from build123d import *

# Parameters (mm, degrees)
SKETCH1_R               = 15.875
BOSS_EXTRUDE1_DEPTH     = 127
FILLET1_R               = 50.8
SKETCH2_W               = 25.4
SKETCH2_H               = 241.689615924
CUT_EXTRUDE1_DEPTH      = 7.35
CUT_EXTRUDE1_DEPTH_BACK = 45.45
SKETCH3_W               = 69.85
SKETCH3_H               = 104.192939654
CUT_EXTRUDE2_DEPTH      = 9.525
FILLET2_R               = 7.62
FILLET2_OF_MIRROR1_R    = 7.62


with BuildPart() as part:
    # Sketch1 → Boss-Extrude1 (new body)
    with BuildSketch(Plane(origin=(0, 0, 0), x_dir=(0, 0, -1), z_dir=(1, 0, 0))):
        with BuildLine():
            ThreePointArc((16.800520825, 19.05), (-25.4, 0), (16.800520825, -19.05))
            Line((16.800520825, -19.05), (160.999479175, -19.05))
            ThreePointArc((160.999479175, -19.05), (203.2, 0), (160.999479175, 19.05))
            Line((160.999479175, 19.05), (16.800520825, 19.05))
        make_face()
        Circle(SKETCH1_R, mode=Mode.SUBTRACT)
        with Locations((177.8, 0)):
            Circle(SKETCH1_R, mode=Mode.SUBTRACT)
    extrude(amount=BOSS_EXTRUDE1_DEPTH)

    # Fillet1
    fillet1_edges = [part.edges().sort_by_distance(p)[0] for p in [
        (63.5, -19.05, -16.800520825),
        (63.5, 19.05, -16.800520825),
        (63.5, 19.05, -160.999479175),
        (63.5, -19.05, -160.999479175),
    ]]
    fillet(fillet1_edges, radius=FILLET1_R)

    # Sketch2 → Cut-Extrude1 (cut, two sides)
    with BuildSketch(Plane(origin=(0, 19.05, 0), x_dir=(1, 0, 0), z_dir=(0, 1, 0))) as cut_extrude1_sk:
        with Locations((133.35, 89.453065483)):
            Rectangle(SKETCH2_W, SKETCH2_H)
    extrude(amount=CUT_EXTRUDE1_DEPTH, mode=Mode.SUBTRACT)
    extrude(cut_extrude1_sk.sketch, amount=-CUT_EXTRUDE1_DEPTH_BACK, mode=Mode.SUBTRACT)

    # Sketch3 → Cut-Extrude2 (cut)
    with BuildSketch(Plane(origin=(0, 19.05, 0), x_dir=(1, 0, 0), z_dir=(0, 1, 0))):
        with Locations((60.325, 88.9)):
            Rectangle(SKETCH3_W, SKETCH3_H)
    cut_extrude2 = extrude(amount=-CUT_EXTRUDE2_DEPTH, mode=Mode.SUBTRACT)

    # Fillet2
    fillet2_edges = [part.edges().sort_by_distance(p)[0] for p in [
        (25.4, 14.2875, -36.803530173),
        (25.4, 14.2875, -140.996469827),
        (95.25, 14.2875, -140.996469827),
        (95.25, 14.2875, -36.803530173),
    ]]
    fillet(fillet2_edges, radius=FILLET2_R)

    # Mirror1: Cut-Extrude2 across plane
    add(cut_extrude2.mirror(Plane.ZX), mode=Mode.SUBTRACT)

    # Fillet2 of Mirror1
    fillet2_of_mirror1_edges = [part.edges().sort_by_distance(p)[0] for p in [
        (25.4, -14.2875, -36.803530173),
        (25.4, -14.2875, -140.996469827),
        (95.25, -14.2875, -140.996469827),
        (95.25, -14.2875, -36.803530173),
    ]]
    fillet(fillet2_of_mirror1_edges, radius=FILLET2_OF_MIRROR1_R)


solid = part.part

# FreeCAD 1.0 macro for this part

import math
import FreeCAD as App
import Part
import Sketcher
from FreeCAD import Vector
Q = App.Units.Quantity


def edges_at(feature, points):
    """Names of the edges that pass closest to the given points."""
    edges = feature.Shape.Edges
    near = lambda p: min(range(len(edges)), key=lambda i: edges[i].distToShape(Part.Vertex(*p))[0])
    return sorted({f"Edge{near(p) + 1}" for p in points})


def add_polygon(sketch, points):
    """Adds a closed chain of lines whose ends are joined by coincident constraints."""
    first, n = sketch.GeometryCount, len(points)
    for a, b in zip(points, points[1:] + points[:1]):
        sketch.addGeometry(Part.LineSegment(App.Vector(*a, 0), App.Vector(*b, 0)), False)
    for i in range(n):
        sketch.addConstraint(Sketcher.Constraint("Coincident", first + i, 2, first + (i + 1) % n, 1))

doc = App.newDocument("Part")
body = doc.addObject("PartDesign::Body", "Body")

sketch1 = body.newObject("Sketcher::SketchObject", "Sketch")
sketch1.AttachmentSupport = (doc.getObject("YZ_Plane"), [""])
sketch1.MapMode = "FlatFace"
sketch1.addGeometry([
    Part.ArcOfCircle(Part.Circle(Vector(0, 0, 0), Vector(0, 0, 1), 25.4), math.radians(-41.409622), math.radians(221.409622)),
    Part.LineSegment(Vector(-19.05, -16.800521, 0), Vector(-19.05, -160.999479, 0)),
    Part.ArcOfCircle(Part.Circle(Vector(0, -177.8, 0), Vector(0, 0, 1), 25.4), math.radians(138.590378), math.radians(401.409622)),
    Part.LineSegment(Vector(19.05, -160.999479, 0), Vector(19.05, -16.800521, 0)),
    Part.Circle(Vector(0, 0, 0), Vector(0, 0, 1), 15.875),
    Part.Circle(Vector(0, -177.8, 0), Vector(0, 0, 1), 15.875),
], False)
sketch1.addConstraint([
    Sketcher.Constraint("Coincident", 0, 2, 1, 1),
    Sketcher.Constraint("Coincident", 1, 2, 2, 1),
    Sketcher.Constraint("Coincident", 2, 2, 3, 1),
    Sketcher.Constraint("Coincident", 3, 2, 0, 1),
    Sketcher.Constraint("Vertical", 1),
    Sketcher.Constraint("Vertical", 3),
    Sketcher.Constraint("Coincident", 0, 3, -1, 1),
    Sketcher.Constraint("Coincident", 4, 3, -1, 1),
    Sketcher.Constraint("Coincident", 5, 3, 2, 3),
    Sketcher.Constraint("Equal", 0, 2),
    Sketcher.Constraint("Equal", 4, 5),
    Sketcher.Constraint("Symmetric", 1, 2, 2, 2, -2),
    Sketcher.Constraint("Radius", 0, Q("1 in")),
    Sketcher.Constraint("Diameter", 4, Q("1.25 in")),
    Sketcher.Constraint("DistanceY", 2, 3, -1, 1, Q("7 in")),
    Sketcher.Constraint("DistanceX", 1, 2, 2, 2, Q("1.5 in")),
])
pad1 = body.newObject("PartDesign::Pad", "Pad")
pad1.Profile = sketch1
pad1.Length = Q("5 in")
doc.recompute()

fillet = body.newObject("PartDesign::Fillet", "Fillet")
fillet.Base = (pad1, edges_at(pad1, [
    (63.5, -19.05, -16.801),
    (63.5, 19.05, -16.801),
    (63.5, 19.05, -160.999),
    (63.5, -19.05, -160.999),
]))
fillet.Radius = Q("2 in")

sketch2 = body.newObject("Sketcher::SketchObject", "Sketch001")
sketch2.AttachmentSupport = (doc.getObject("XZ_Plane"), [""])
sketch2.MapMode = "FlatFace"
sketch2.AttachmentOffset = App.Placement(Vector(0, 0, -0.75 * 25.4), App.Rotation())
add_polygon(sketch2, [(120.65, -210.297873), (120.65, 31.391742), (146.05, 31.391742), (146.05, -210.297873)])
sketch2.addConstraint([
    Sketcher.Constraint("Vertical", 0),
    Sketcher.Constraint("Horizontal", 1),
    Sketcher.Constraint("Vertical", 2),
    Sketcher.Constraint("Horizontal", 3),
    Sketcher.Constraint("DistanceX", 1, 1, 1, 2, Q("1 in")),
    Sketcher.Constraint("DistanceX", -1, 1, 0, 2, Q("4.75 in")),
    Sketcher.Constraint("DistanceY", 0, 1, 0, 2, Q("241.689616 mm")),
    Sketcher.Constraint("DistanceY", -1, 1, 0, 2, Q("31.391742 mm")),
])
pocket1 = body.newObject("PartDesign::Pocket", "Pocket")
pocket1.Profile = sketch2
pocket1.Type = "ThroughAll"
pocket1.Midplane = True

sketch3 = body.newObject("Sketcher::SketchObject", "Sketch002")
sketch3.AttachmentSupport = (doc.getObject("XZ_Plane"), [""])
sketch3.MapMode = "FlatFace"
sketch3.AttachmentOffset = App.Placement(Vector(0, 0, -0.75 * 25.4), App.Rotation())
add_polygon(sketch3, [(25.4, -140.99647), (25.4, -36.80353), (95.25, -36.80353), (95.25, -140.99647)])
sketch3.addConstraint([
    Sketcher.Constraint("Vertical", 0),
    Sketcher.Constraint("Horizontal", 1),
    Sketcher.Constraint("Vertical", 2),
    Sketcher.Constraint("Horizontal", 3),
    Sketcher.Constraint("DistanceX", -1, 1, 0, 2, Q("1 in")),
    Sketcher.Constraint("DistanceX", 1, 1, 1, 2, Q("2.75 in")),
    Sketcher.Constraint("DistanceY", 0, 1, 0, 2, Q("104.19294 mm")),
    Sketcher.Constraint("DistanceY", 0, 2, -1, 1, Q("36.80353 mm")),
])
pocket2 = body.newObject("PartDesign::Pocket", "Pocket001")
pocket2.Profile = sketch3
pocket2.Length = Q("0.375 in")
pocket2.Reversed = True
doc.recompute()

fillet2 = body.newObject("PartDesign::Fillet", "Fillet001")
fillet2.Base = (pocket2, edges_at(pocket2, [
    (25.4, 14.287, -36.804),
    (25.4, 14.287, -140.996),
    (95.25, 14.287, -140.996),
    (95.25, 14.287, -36.804),
]))
fillet2.Radius = Q("0.3 in")
doc.recompute()

mirrored = body.newObject("PartDesign::Mirrored", "Mirrored")
mirrored.Originals = [pocket2]
mirrored.MirrorPlane = (doc.getObject("XZ_Plane"), [""])
body.Tip = mirrored
doc.recompute()

fillet3 = body.newObject("PartDesign::Fillet", "Fillet002")
fillet3.Base = (mirrored, edges_at(mirrored, [
    (25.4, -14.287, -36.804),
    (25.4, -14.287, -140.996),
    (95.25, -14.287, -140.996),
    (95.25, -14.287, -36.804),
]))
fillet3.Radius = Q("0.3 in")

doc.recompute()
